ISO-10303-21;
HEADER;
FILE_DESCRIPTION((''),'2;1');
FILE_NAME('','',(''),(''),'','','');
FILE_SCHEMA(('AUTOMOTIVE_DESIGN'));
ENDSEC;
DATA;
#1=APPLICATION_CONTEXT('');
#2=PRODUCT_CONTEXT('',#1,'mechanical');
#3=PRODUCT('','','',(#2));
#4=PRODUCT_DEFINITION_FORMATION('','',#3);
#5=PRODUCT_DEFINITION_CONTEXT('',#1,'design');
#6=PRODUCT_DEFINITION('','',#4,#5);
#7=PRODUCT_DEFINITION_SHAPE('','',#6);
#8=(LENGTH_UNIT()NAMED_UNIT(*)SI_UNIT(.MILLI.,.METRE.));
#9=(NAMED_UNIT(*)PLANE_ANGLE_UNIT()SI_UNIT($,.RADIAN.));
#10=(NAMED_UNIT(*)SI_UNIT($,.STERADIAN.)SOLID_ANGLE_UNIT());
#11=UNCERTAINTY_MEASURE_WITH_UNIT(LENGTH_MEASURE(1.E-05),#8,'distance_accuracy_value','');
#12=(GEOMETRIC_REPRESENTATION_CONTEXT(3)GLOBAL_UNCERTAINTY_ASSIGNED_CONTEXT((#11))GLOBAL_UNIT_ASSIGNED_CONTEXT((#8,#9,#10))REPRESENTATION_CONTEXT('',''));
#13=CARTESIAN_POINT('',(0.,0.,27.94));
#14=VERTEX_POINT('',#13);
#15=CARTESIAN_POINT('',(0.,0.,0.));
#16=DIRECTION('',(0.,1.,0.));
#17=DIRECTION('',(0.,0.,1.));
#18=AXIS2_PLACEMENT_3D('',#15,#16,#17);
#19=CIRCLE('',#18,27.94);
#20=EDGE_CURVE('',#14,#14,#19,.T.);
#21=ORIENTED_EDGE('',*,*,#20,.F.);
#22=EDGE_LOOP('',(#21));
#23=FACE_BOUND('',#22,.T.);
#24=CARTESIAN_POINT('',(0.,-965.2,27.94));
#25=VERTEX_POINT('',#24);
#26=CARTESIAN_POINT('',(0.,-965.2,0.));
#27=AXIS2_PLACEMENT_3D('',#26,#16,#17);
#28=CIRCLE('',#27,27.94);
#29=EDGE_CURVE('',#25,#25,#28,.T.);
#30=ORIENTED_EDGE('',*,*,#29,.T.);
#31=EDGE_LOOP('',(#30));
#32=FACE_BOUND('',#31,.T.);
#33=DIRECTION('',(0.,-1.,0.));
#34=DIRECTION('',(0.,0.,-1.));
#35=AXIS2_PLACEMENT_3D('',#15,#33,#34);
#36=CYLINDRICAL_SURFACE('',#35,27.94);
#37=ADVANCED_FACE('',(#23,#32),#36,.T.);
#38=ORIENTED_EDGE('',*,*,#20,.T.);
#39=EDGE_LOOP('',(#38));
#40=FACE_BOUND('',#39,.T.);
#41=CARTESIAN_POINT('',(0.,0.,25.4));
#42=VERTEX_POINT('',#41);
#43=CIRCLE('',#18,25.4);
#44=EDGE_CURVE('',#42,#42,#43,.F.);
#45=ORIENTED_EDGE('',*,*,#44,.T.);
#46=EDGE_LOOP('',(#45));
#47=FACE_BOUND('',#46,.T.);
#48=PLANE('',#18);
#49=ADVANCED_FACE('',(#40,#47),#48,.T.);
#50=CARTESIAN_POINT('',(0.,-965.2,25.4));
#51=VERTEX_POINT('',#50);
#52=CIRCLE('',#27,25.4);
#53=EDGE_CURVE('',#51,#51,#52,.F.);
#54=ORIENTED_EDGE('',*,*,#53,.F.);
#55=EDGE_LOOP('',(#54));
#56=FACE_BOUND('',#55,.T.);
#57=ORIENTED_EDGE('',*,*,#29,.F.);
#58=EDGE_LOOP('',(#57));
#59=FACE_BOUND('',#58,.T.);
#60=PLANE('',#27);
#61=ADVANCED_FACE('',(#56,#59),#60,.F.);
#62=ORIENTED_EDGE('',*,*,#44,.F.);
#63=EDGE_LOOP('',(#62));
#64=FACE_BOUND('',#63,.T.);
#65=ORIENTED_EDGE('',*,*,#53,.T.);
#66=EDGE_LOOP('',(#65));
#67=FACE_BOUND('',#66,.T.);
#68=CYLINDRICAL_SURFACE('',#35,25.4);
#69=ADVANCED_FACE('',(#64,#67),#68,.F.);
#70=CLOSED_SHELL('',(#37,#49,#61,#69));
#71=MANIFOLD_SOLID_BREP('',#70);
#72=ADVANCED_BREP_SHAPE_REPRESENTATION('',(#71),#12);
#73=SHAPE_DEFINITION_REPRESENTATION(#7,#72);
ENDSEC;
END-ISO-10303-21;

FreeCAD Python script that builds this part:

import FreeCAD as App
import Part
import Sketcher
Q = App.Units.Quantity

doc = App.newDocument("Part")
body = doc.addObject("PartDesign::Body", "Body")

# Sketch on XZ plane
sketch1 = body.newObject("Sketcher::SketchObject", "Sketch")
sketch1.AttachmentSupport = (doc.getObject("XZ_Plane"), [""])
sketch1.MapMode = "FlatFace"
sketch1.addGeometry(Part.Circle(App.Vector(0, 0, 0), App.Vector(0, 0, 1), 28), False)
sketch1.addGeometry(Part.Circle(App.Vector(0, 0, 0), App.Vector(0, 0, 1), 25), False)
sketch1.addConstraint(Sketcher.Constraint("Coincident", 0, 3, -1, 1))
sketch1.addConstraint(Sketcher.Constraint("Coincident", 1, 3, -1, 1))
sketch1.addConstraint(Sketcher.Constraint("Diameter", 1, Q("2 in")))
sketch1.addConstraint(Sketcher.Constraint("Diameter", 0, Q("2.2 in")))

# Sketch on XY plane
sketch2 = body.newObject("Sketcher::SketchObject", "Sketch001")
sketch2.AttachmentSupport = (doc.getObject("XY_Plane"), [""])
sketch2.MapMode = "FlatFace"
sketch2.addGeometry(Part.LineSegment(App.Vector(0, 0, 0), App.Vector(0, -965, 0)), False)
sketch2.addConstraint(Sketcher.Constraint("Vertical", 0))
sketch2.addConstraint(Sketcher.Constraint("Coincident", 0, 1, -1, 1))
sketch2.addConstraint(Sketcher.Constraint("DistanceY", 0, 2, 0, 1, Q("38 in")))
doc.recompute()

additivepipe = body.newObject("PartDesign::AdditivePipe", "AdditivePipe")
additivepipe.Profile = sketch1
additivepipe.Spine = (sketch2, ["Edge1"])

doc.recompute()
